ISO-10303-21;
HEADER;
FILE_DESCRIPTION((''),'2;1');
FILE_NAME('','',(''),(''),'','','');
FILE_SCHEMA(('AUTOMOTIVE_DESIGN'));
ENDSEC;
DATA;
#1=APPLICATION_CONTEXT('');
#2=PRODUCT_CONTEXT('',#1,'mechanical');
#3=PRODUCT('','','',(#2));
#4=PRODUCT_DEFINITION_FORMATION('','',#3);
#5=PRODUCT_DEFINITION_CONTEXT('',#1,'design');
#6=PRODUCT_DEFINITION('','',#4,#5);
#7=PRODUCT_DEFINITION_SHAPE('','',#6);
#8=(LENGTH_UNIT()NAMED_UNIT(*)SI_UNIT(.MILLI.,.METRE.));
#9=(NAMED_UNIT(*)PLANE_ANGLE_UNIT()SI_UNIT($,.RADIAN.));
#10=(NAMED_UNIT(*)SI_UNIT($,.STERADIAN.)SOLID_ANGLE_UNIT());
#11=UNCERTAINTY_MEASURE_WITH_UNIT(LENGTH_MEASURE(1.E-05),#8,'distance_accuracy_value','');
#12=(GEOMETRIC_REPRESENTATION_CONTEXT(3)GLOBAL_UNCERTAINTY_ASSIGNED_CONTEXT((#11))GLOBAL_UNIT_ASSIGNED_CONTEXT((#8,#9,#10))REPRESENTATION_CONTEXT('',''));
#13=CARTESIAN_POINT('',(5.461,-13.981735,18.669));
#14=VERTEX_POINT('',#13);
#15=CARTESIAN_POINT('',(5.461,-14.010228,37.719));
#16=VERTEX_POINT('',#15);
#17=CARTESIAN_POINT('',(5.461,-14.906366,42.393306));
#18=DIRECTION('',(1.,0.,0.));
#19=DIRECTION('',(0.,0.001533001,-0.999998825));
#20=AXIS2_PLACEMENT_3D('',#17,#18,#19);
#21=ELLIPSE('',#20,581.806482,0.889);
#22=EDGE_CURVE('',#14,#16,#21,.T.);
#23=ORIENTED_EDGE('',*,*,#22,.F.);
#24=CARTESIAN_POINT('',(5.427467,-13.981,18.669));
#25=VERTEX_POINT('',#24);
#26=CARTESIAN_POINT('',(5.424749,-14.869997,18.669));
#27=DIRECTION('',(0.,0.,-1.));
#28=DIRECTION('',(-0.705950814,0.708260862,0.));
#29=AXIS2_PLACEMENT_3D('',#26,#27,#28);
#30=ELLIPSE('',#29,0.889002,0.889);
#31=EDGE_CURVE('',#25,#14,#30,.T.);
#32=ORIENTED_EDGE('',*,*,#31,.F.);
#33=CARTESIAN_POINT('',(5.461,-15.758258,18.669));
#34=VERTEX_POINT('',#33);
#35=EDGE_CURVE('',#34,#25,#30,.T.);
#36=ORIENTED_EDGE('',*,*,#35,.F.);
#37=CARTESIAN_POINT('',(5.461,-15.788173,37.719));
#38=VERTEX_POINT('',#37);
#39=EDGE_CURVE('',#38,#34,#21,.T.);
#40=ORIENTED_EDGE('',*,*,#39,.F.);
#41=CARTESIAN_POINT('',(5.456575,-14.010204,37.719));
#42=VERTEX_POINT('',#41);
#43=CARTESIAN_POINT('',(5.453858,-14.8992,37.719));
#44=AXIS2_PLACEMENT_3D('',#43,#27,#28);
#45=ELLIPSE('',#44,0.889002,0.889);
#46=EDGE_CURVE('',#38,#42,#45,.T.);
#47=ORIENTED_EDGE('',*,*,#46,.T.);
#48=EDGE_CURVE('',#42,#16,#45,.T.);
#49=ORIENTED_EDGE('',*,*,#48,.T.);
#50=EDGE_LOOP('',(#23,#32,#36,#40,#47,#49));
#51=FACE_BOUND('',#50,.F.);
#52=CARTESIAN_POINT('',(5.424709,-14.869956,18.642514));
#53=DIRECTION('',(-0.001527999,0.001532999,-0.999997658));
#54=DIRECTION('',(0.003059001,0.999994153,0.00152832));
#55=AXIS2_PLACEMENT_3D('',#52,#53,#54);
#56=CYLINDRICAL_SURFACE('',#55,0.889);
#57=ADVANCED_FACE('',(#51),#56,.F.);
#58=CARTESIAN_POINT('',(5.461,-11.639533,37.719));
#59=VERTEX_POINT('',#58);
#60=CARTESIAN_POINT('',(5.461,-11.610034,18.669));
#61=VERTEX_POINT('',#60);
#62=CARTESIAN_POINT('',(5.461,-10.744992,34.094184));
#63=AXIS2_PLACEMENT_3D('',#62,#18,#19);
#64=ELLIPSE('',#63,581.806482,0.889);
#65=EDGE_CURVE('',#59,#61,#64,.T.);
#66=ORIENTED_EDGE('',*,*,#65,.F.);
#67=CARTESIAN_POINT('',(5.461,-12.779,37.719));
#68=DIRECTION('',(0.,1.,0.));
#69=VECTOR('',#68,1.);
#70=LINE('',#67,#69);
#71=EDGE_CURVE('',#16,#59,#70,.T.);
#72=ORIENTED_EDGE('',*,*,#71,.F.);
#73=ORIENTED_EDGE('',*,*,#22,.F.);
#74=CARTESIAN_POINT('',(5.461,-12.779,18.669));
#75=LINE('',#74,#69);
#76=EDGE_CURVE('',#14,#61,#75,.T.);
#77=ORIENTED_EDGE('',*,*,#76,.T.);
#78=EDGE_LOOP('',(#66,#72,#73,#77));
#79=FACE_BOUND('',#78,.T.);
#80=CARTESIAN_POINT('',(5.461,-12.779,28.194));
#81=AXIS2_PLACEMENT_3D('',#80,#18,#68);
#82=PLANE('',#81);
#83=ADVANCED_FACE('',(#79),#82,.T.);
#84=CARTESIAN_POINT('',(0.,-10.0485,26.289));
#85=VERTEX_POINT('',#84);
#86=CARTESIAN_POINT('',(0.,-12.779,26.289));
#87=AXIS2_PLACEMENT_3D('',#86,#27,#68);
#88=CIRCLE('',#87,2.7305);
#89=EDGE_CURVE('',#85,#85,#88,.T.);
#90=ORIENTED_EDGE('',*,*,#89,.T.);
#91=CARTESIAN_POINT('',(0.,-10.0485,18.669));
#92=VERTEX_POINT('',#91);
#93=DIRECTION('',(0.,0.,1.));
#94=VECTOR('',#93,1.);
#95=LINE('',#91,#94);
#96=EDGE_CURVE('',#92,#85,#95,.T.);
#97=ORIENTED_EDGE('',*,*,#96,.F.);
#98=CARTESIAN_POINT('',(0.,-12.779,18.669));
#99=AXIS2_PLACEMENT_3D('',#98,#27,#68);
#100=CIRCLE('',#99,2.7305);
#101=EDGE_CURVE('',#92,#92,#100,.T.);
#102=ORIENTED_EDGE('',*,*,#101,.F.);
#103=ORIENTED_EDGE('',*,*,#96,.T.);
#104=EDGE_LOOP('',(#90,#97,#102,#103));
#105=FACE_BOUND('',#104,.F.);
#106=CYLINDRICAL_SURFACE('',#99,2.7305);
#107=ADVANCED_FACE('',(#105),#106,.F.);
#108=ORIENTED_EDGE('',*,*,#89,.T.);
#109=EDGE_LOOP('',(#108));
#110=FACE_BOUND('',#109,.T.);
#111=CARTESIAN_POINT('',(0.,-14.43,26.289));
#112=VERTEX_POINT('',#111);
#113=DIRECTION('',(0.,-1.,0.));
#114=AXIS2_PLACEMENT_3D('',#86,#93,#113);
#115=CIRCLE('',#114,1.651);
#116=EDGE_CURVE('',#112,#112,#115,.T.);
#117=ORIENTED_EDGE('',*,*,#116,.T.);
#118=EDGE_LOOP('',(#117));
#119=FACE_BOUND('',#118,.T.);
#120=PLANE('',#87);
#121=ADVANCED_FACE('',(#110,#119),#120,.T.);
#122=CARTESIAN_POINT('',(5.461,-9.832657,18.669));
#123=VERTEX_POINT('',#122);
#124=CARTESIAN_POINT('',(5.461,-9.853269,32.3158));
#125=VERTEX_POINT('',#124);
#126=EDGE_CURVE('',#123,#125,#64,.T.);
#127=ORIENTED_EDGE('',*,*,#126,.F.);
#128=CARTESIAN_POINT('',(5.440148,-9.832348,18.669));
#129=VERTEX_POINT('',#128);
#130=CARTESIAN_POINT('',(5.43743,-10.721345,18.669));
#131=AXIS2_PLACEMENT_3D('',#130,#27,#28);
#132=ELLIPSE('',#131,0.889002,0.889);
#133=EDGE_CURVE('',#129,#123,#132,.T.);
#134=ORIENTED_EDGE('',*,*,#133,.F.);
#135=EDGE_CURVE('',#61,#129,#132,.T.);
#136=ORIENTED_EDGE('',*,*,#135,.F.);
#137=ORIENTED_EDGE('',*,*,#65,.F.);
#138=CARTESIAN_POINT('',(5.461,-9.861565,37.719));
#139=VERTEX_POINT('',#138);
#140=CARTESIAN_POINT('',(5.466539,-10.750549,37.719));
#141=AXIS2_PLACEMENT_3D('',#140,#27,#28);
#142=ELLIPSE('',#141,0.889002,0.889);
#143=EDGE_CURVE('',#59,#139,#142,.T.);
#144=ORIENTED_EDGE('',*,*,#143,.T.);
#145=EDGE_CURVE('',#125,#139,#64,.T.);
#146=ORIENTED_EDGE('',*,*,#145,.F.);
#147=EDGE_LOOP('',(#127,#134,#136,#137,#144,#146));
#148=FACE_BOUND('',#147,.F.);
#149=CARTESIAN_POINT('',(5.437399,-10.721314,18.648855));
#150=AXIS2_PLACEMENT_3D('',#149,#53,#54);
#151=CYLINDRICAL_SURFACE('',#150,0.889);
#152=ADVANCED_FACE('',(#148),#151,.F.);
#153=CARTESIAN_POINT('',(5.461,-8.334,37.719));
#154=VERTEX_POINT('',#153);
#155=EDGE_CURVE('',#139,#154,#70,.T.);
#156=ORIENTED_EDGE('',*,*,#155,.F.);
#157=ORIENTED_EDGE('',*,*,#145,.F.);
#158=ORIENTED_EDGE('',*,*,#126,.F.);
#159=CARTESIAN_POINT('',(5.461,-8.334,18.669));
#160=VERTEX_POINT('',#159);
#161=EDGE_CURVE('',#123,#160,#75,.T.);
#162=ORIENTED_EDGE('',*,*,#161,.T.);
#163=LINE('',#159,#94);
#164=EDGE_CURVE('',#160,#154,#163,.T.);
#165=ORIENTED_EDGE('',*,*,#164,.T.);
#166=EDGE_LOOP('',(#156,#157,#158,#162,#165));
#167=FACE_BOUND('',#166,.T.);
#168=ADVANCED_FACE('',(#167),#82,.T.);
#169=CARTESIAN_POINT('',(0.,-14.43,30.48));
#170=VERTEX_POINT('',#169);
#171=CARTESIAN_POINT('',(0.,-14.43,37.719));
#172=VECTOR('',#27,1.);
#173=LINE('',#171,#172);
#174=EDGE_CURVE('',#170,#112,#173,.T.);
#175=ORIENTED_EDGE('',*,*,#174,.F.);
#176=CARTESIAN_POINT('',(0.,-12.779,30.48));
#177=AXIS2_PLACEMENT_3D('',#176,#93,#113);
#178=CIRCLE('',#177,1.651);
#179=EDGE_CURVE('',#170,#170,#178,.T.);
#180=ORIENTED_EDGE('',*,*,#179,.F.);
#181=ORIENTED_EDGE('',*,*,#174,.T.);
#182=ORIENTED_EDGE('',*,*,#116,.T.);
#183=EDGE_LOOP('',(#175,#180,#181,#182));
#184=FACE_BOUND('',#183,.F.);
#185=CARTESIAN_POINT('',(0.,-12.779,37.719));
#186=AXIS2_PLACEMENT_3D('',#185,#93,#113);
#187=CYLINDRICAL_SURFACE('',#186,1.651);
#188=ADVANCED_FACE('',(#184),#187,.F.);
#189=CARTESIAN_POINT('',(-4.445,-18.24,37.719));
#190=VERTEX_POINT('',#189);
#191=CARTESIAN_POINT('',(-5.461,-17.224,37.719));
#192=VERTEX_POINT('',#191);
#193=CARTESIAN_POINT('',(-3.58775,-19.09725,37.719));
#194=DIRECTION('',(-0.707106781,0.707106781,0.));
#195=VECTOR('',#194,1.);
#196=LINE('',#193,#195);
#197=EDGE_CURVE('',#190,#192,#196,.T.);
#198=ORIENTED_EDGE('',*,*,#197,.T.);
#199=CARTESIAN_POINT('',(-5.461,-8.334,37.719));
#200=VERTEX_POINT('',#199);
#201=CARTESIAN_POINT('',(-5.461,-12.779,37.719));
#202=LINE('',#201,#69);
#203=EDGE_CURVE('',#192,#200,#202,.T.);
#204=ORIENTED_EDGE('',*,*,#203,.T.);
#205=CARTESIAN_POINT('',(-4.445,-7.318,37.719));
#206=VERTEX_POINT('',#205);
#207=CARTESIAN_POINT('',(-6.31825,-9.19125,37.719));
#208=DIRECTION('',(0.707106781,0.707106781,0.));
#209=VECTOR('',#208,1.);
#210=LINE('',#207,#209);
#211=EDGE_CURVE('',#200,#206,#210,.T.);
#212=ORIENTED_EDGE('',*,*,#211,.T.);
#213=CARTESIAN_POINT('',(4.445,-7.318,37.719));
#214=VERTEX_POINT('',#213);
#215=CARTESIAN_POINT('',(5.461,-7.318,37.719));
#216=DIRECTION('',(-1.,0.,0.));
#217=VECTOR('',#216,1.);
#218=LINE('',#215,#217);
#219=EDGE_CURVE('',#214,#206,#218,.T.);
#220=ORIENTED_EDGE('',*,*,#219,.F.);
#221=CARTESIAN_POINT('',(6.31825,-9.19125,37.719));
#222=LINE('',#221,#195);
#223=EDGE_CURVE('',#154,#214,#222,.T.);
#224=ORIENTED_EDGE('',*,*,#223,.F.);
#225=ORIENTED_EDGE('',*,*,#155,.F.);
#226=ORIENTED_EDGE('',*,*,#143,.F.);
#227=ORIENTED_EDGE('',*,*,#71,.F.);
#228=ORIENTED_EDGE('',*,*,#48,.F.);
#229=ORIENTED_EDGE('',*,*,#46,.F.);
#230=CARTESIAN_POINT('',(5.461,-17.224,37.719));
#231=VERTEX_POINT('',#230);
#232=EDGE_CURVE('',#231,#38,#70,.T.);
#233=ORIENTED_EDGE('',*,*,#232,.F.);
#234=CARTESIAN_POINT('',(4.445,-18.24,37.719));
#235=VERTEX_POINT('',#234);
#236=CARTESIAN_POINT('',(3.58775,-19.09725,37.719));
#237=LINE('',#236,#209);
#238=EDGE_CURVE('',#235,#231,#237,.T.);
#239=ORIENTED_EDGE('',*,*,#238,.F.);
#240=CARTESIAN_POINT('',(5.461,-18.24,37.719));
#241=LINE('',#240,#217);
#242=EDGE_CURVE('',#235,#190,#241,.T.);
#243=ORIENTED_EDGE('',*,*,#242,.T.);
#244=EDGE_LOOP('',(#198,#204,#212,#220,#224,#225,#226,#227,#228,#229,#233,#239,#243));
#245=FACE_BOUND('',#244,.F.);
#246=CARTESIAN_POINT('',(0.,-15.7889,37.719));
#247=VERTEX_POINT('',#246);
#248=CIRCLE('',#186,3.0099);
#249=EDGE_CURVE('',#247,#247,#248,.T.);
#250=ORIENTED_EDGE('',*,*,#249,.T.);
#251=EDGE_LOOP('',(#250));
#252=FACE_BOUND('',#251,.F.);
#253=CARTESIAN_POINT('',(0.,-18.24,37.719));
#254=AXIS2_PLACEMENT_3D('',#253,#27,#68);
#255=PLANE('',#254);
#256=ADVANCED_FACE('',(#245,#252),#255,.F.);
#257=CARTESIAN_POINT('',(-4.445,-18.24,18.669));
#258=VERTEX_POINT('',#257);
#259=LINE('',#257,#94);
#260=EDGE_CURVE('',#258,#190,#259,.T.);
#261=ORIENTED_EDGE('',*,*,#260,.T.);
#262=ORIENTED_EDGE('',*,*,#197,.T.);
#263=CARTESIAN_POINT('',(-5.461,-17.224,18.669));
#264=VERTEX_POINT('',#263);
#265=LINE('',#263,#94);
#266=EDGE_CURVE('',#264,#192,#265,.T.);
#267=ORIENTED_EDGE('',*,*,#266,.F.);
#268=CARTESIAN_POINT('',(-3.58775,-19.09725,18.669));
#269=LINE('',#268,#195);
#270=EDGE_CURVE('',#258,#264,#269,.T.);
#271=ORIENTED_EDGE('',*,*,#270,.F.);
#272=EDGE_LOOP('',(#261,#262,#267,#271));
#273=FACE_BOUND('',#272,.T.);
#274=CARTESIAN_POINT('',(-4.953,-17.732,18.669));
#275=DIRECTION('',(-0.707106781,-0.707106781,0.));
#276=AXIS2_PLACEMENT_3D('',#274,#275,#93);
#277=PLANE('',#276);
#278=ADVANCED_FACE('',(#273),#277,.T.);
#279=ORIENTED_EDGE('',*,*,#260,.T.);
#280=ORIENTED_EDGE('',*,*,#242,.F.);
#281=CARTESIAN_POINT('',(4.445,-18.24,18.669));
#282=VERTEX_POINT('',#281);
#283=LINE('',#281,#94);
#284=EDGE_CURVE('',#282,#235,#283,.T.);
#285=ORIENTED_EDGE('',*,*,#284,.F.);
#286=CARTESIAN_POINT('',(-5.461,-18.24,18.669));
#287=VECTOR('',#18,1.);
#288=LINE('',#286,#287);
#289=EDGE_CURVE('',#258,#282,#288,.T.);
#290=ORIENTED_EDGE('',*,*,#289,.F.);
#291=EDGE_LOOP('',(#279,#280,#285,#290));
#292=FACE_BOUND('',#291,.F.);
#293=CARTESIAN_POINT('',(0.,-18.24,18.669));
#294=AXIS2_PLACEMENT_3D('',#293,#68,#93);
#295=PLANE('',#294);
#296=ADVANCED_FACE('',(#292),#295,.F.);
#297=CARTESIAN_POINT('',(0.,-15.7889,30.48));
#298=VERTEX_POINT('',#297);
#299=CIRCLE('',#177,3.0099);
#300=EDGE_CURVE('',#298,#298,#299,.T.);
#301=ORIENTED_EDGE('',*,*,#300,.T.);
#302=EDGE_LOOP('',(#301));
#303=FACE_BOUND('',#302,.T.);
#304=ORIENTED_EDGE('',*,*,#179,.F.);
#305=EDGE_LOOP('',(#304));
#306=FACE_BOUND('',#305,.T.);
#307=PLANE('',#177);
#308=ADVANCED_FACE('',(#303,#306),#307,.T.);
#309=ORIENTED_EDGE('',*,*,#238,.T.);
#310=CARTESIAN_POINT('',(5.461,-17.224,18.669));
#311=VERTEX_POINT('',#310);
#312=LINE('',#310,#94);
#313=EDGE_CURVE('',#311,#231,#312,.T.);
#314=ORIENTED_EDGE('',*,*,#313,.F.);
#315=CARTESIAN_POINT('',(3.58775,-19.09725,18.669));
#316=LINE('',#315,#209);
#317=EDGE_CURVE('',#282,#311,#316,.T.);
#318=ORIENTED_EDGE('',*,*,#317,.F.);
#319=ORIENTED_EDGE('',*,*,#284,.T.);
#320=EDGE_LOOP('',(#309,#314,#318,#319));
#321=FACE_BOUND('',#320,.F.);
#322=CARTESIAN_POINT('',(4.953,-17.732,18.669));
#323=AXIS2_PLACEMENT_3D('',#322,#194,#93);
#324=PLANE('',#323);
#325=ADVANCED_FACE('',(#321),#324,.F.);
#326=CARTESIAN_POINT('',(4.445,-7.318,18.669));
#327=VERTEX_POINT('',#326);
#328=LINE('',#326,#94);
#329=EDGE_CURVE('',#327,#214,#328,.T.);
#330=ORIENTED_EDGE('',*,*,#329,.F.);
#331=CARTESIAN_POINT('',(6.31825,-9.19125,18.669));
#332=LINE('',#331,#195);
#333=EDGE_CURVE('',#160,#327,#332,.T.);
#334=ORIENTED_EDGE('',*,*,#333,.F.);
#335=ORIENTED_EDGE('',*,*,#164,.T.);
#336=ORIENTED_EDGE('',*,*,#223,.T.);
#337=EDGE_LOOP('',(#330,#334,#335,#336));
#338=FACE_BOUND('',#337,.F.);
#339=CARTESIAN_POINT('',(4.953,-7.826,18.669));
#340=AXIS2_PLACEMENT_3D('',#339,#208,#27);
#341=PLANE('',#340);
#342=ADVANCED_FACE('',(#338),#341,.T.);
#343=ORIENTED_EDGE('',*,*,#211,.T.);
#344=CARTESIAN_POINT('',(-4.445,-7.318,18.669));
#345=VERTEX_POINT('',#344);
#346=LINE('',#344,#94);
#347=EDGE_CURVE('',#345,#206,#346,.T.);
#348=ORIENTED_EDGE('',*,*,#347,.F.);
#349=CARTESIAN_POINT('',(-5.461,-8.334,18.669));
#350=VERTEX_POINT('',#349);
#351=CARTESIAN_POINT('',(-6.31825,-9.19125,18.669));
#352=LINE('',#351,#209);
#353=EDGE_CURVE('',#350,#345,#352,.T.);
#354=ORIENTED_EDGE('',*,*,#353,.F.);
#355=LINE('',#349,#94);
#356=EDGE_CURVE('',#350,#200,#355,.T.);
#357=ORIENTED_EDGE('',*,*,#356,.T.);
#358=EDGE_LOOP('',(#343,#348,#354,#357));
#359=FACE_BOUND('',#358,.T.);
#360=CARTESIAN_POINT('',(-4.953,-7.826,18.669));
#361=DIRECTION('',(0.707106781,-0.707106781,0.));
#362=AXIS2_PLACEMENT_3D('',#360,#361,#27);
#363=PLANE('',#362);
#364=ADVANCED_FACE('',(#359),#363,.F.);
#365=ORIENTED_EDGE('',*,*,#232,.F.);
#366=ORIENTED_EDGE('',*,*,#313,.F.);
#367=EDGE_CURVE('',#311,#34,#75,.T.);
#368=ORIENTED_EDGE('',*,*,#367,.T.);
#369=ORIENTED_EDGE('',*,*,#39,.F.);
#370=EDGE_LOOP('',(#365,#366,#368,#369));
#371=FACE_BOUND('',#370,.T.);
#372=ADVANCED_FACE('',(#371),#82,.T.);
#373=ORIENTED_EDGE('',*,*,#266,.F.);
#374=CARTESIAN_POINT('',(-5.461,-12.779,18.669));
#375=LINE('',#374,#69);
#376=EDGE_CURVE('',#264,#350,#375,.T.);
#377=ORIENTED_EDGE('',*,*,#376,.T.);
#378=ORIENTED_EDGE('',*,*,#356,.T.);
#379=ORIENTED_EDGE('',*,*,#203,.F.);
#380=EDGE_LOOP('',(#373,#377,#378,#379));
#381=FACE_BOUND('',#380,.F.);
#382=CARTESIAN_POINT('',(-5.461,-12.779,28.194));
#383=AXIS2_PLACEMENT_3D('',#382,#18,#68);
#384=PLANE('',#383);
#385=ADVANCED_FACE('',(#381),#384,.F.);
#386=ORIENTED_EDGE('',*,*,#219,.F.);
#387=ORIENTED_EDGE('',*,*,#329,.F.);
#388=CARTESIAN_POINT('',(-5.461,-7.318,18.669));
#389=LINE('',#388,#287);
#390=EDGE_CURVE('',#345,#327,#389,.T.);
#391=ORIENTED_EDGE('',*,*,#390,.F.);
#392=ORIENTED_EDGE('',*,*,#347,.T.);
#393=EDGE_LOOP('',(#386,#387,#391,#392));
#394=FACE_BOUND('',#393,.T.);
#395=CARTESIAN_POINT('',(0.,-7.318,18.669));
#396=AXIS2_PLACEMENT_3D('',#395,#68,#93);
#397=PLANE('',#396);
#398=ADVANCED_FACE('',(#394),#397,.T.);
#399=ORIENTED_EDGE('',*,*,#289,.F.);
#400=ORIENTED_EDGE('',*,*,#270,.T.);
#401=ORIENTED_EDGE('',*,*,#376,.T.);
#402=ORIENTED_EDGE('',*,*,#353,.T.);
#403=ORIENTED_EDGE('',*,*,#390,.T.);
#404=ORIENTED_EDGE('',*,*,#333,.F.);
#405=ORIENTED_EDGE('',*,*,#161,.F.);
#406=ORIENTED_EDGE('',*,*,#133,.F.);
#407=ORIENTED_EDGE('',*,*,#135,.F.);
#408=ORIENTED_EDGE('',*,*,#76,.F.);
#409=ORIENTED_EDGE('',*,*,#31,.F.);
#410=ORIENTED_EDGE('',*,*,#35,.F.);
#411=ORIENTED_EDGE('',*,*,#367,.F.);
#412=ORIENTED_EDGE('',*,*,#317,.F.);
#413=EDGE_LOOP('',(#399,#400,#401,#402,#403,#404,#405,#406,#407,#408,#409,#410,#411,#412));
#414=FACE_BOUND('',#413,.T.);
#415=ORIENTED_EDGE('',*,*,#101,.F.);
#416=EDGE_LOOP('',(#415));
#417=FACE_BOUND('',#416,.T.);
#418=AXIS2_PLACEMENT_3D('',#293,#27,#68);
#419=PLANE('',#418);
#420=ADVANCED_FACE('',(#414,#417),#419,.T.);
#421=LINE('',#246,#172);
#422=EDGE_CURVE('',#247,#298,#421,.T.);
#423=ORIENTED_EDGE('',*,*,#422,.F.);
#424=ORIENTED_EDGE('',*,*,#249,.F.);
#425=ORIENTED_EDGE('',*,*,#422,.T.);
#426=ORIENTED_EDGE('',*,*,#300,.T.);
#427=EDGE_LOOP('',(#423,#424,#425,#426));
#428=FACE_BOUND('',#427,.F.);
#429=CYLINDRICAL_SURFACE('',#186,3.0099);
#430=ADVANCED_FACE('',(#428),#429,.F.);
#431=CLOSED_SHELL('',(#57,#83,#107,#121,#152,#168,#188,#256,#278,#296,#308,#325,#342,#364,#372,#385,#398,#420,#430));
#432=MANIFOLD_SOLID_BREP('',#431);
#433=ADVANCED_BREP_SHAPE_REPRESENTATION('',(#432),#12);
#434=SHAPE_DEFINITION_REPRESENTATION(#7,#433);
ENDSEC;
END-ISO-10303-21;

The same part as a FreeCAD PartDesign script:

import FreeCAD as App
import Part
import Sketcher
Q = App.Units.Quantity


def edges_at(feature, points):
    """Names of the edges that pass closest to the given points."""
    edges = feature.Shape.Edges
    near = lambda p: min(range(len(edges)), key=lambda i: edges[i].distToShape(Part.Vertex(*p))[0])
    return sorted({f"Edge{near(p) + 1}" for p in points})

doc = App.newDocument("Part")
body = doc.addObject("PartDesign::Body", "Body")

# Sketch on YZ plane
sketch1 = body.newObject("Sketcher::SketchObject", "Sketch")
sketch1.AttachmentSupport = (doc.getObject("YZ_Plane"), [""])
sketch1.MapMode = "FlatFace"
sketch1.addGeometry([
    Part.LineSegment(App.Vector(-15, 38, 0), App.Vector(-15, 19, 0)),
    Part.LineSegment(App.Vector(-15, 19, 0), App.Vector(-4, 19, 0)),
    Part.LineSegment(App.Vector(-4, 19, 0), App.Vector(-4, 38, 0)),
    Part.LineSegment(App.Vector(-4, 38, 0), App.Vector(-15, 38, 0)),
], False)
sketch1.addConstraint([
    Sketcher.Constraint("Coincident", 0, 2, 1, 1),
    Sketcher.Constraint("Coincident", 1, 2, 2, 1),
    Sketcher.Constraint("Coincident", 2, 2, 3, 1),
    Sketcher.Constraint("Coincident", 3, 2, 0, 1),
    Sketcher.Constraint("Vertical", 0),
    Sketcher.Constraint("Horizontal", 1),
    Sketcher.Constraint("Vertical", 2),
    Sketcher.Constraint("Horizontal", 3),
    Sketcher.Constraint("DistanceX", 1, 1, 1, 2, Q("0.43 in")),
    Sketcher.Constraint("DistanceY", 0, 2, 0, 1, Q("0.75 in")),
    Sketcher.Constraint("DistanceX", 0, 2, -1, 1, Q("0.6 in")),
    Sketcher.Constraint("DistanceY", -1, 1, 0, 2, Q("0.735 in")),
])
pad1 = body.newObject("PartDesign::Pad", "Pad")
pad1.Profile = sketch1
pad1.Length = Q("0.43 in")
pad1.Midplane = True

# Sketch on XY plane
sketch2 = body.newObject("Sketcher::SketchObject", "Sketch001")
sketch2.AttachmentSupport = (doc.getObject("XY_Plane"), [""])
sketch2.MapMode = "FlatFace"
sketch2.AttachmentOffset = App.Placement(App.Vector(0, 0, 1.485 * 25.4), App.Rotation())
sketch2.addGeometry(Part.Circle(App.Vector(0, -9.8, 0), App.Vector(0, 0, 1), 3), False)
sketch2.addConstraint([
    Sketcher.Constraint("PointOnObject", 0, 3, -2),
    Sketcher.Constraint("Diameter", 0, Q("0.237 in")),
    Sketcher.Constraint("DistanceY", 0, 3, -1, 1, Q("0.385 in")),
])
pocket1 = body.newObject("PartDesign::Pocket", "Pocket")
pocket1.Profile = sketch2
pocket1.Length = Q("0.285 in")

# Sketch on XY plane
sketch3 = body.newObject("Sketcher::SketchObject", "Sketch002")
sketch3.AttachmentSupport = (doc.getObject("XY_Plane"), [""])
sketch3.MapMode = "FlatFace"
sketch3.AttachmentOffset = App.Placement(App.Vector(0, 0, 1.485 * 25.4), App.Rotation())
sketch3.addGeometry(Part.Circle(App.Vector(0, -9.8, 0), App.Vector(0, 0, 1), 1.7), False)
sketch3.addConstraint([
    Sketcher.Constraint("PointOnObject", 0, 3, -2),
    Sketcher.Constraint("Diameter", 0, Q("0.13 in")),
    Sketcher.Constraint("DistanceY", 0, 3, -1, 1, Q("0.385 in")),
])
pocket2 = body.newObject("PartDesign::Pocket", "Pocket001")
pocket2.Profile = sketch3
pocket2.Type = "ThroughAll"

# Sketch on XY plane
sketch4 = body.newObject("Sketcher::SketchObject", "Sketch003")
sketch4.AttachmentSupport = (doc.getObject("XY_Plane"), [""])
sketch4.MapMode = "FlatFace"
sketch4.AttachmentOffset = App.Placement(App.Vector(0, 0, 0.735 * 25.4), App.Rotation())
sketch4.addGeometry(Part.Circle(App.Vector(0, -9.8, 0), App.Vector(0, 0, 1), 2.7), False)
sketch4.addConstraint([
    Sketcher.Constraint("PointOnObject", 0, 3, -2),
    Sketcher.Constraint("Diameter", 0, Q("0.215 in")),
    Sketcher.Constraint("DistanceY", 0, 3, -1, 1, Q("0.385 in")),
])
pocket3 = body.newObject("PartDesign::Pocket", "Pocket002")
pocket3.Profile = sketch4
pocket3.Length = Q("0.3 in")
pocket3.Reversed = True

# Sketch on an angled plane
sketch5 = body.newObject("Sketcher::SketchObject", "Sketch004")
sketch5.Placement = App.Placement(App.Vector(0, 0, 18.669), App.Rotation(App.Vector(0.003059001, 0.999994153, 0.00152832), App.Vector(0.999994154, -0.003056659, -0.00153268), App.Vector(-0.001527999, 0.001532999, -0.999997658), "ZXY"))
sketch5.addGeometry([
    Part.Circle(App.Vector(-11.9, 5.5, 0), App.Vector(0, 0, 1), 0.9),
    Part.Circle(App.Vector(-7.7, 5.5, 0), App.Vector(0, 0, 1), 0.9),
], False)
sketch5.addConstraint([
    Sketcher.Constraint("Equal", 0, 1),
    Sketcher.Constraint("Horizontal", 0, 3, 1, 3),
    Sketcher.Constraint("Diameter", 0, Q("0.07 in")),
    Sketcher.Constraint("DistanceY", -1, 1, 0, 3, Q("0.215 in")),
    Sketcher.Constraint("DistanceX", 0, 3, -1, 1, 11.853333),
    Sketcher.Constraint("DistanceX", 1, 3, -1, 1, 7.704667),
])
pocket4 = body.newObject("PartDesign::Pocket", "Pocket003")
pocket4.Profile = sketch5
pocket4.Type = "ThroughAll"
doc.recompute()

chamfer = body.newObject("PartDesign::Chamfer", "Chamfer")
chamfer.Base = (pocket4, edges_at(pocket4, [
    (-5.461, -4.318, 28.194),
    (-5.461, -15.24, 28.194),
    (5.461, -15.24, 28.194),
    (5.461, -4.318, 28.194),
]))
chamfer.Size = Q("0.04 in")
body2 = doc.addObject("PartDesign::Body", "Body001")
doc.recompute()

body.Placement = App.Placement(App.Vector(0, -3, 0), App.Rotation(App.Vector(0, 0, 1), 0))
boolean = body2.newObject("PartDesign::Boolean", "Boolean")
boolean.Type = "Fuse"
boolean.addObjects([body])

doc.recompute()
